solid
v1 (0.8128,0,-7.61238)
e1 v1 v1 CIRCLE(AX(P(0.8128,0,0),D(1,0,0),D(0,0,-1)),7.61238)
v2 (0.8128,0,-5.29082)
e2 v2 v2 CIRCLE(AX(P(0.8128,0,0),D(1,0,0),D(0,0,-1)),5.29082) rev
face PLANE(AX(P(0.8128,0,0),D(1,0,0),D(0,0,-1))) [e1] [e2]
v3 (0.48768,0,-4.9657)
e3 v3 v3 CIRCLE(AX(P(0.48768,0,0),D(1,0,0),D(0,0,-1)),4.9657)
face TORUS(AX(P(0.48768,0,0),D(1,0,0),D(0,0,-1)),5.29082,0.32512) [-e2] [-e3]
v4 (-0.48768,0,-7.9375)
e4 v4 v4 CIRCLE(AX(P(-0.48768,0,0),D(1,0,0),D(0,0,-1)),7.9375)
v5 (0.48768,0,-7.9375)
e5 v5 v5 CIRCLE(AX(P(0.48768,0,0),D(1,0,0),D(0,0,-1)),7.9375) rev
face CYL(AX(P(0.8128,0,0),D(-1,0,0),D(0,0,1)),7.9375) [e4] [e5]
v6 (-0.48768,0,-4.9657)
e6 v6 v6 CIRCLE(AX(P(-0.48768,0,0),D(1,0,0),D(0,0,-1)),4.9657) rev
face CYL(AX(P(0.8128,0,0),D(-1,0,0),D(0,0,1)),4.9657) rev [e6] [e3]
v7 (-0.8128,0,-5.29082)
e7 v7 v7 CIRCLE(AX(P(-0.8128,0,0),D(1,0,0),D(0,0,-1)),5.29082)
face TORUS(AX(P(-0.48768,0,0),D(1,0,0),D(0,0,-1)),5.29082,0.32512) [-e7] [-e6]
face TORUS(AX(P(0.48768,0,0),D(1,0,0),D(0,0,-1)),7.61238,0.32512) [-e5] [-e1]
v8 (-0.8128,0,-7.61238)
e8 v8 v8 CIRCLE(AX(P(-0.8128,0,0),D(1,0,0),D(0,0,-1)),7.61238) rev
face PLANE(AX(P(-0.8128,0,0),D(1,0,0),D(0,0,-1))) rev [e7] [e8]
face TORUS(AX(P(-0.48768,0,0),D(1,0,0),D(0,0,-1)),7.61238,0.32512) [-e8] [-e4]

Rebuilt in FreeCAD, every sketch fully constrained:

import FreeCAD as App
import Part
import Sketcher
Q = App.Units.Quantity


def edges_at(feature, points):
    """Names of the edges that pass closest to the given points."""
    edges = feature.Shape.Edges
    near = lambda p: min(range(len(edges)), key=lambda i: edges[i].distToShape(Part.Vertex(*p))[0])
    return sorted({f"Edge{near(p) + 1}" for p in points})

doc = App.newDocument("Part")
params = doc.addObject("Spreadsheet::Sheet", "Params")
for row, (alias, value) in enumerate([
    ("sketch1_diameter", "0.625 in"),
    ("sketch1_diameter2", "0.391 in"),
    ("pad1_length", "0.064 in"),
    ("fillet_radius", "0.0128 in"),
], start=1):
    params.set(f"A{row}", alias)
    params.set(f"B{row}", "=" + value)
    params.setAlias(f"B{row}", alias)

body = doc.addObject("PartDesign::Body", "Body")

sketch1 = body.newObject("Sketcher::SketchObject", "Sketch")
sketch1.AttachmentSupport = (doc.getObject("YZ_Plane"), [""])
sketch1.MapMode = "FlatFace"
sketch1.addGeometry(Part.Circle(App.Vector(0, 0, 0), App.Vector(0, 0, 1), 7.9), False)
sketch1.addGeometry(Part.Circle(App.Vector(0, 0, 0), App.Vector(0, 0, 1), 5), False)
sketch1.addConstraint(Sketcher.Constraint("Coincident", 0, 3, -1, 1))
sketch1.addConstraint(Sketcher.Constraint("Coincident", 1, 3, -1, 1))
sketch1.addConstraint(Sketcher.Constraint("Diameter", 0, Q("0.625 in")))
sketch1.addConstraint(Sketcher.Constraint("Diameter", 1, Q("0.391 in")))
sketch1.setExpression("Constraints[2]", "Params.sketch1_diameter")
sketch1.setExpression("Constraints[3]", "Params.sketch1_diameter2")
pad1 = body.newObject("PartDesign::Pad", "Pad")
pad1.Profile = sketch1
pad1.setExpression("Length", "Params.pad1_length")
pad1.Midplane = True
doc.recompute()

fillet = body.newObject("PartDesign::Fillet", "Fillet")
fillet.Base = (pad1, edges_at(pad1, [
    (-0.813, 0, 7.938),
    (0.813, 0, 7.938),
    (-0.813, 0, 4.966),
    (0.813, 0, 4.966),
]))
fillet.setExpression("Radius", "Params.fillet_radius")

doc.recompute()
